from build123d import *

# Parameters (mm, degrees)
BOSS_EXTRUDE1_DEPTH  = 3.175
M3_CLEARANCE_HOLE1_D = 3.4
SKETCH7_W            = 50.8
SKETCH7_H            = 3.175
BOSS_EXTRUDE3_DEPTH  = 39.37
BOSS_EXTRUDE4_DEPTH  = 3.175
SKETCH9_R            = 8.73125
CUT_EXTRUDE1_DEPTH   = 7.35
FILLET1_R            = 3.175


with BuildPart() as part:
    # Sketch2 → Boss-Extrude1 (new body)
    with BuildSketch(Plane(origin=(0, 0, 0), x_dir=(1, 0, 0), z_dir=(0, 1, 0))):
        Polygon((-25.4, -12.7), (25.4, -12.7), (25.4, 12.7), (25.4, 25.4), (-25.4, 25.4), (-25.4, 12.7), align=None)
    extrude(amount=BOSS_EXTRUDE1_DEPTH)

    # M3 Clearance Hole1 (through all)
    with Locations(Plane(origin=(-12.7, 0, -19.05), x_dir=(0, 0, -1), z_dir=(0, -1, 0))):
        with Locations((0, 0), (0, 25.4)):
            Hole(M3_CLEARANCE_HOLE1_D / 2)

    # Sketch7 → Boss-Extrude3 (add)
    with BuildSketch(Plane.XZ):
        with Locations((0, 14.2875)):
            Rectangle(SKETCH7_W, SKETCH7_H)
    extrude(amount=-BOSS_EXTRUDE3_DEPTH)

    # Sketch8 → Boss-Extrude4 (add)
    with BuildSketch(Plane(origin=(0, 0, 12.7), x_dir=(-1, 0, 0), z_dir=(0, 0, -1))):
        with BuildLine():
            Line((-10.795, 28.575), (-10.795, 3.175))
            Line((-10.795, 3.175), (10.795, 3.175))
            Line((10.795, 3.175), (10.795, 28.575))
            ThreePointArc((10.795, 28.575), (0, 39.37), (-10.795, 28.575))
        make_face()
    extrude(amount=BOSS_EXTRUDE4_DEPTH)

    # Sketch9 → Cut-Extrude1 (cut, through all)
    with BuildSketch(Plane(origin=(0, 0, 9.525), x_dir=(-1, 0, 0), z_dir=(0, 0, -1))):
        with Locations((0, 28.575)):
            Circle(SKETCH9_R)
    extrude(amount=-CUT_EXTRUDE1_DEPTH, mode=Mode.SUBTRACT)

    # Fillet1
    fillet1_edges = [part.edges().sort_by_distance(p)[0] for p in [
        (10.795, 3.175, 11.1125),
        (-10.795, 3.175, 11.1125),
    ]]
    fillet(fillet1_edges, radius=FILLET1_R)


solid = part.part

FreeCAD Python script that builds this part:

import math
import FreeCAD as App
import Part
import Sketcher
Q = App.Units.Quantity


def edges_at(feature, points):
    """Names of the edges that pass closest to the given points."""
    edges = feature.Shape.Edges
    near = lambda p: min(range(len(edges)), key=lambda i: edges[i].distToShape(Part.Vertex(*p))[0])
    return sorted({f"Edge{near(p) + 1}" for p in points})

doc = App.newDocument("Part")
params = doc.addObject("Spreadsheet::Sheet", "Params")
for row, (alias, value) in enumerate([
    ("sketch1_width", "2 in"),
    ("sketch1_height", "1.5 in"),
    ("pad1_length", "0.125 in"),
    ("hole_diameter", "3.4 mm"),
    ("sketch3_width", "2 in"),
    ("sketch3_height", "0.125 in"),
    ("pad2_length", "1.55 in"),
    ("sketch4_height", "1 in"),
    ("sketch4_radius", "0.425 in"),
    ("pad3_length", "0.125 in"),
    ("sketch5_diameter", "0.6875 in"),
    ("fillet_radius", "0.125 in"),
], start=1):
    params.set(f"A{row}", alias)
    params.set(f"B{row}", "=" + value)
    params.setAlias(f"B{row}", alias)

body = doc.addObject("PartDesign::Body", "Body")

sketch1 = doc.addObject("Sketcher::SketchObject", "Sketch")
body.addObject(sketch1)
sketch1.AttachmentSupport = (doc.XZ_Plane, [""])
sketch1.MapMode = "FlatFace"
sketch1.addGeometry([
    Part.LineSegment(App.Vector(-25, 13, 0), App.Vector(25, 13, 0)),
    Part.LineSegment(App.Vector(25, 13, 0), App.Vector(25, -25, 0)),
    Part.LineSegment(App.Vector(25, -25, 0), App.Vector(-25, -25, 0)),
    Part.LineSegment(App.Vector(-25, -25, 0), App.Vector(-25, 13, 0)),
], False)
sketch1.addConstraint([
    Sketcher.Constraint("Coincident", 0, 2, 1, 1),
    Sketcher.Constraint("Coincident", 1, 2, 2, 1),
    Sketcher.Constraint("Coincident", 2, 2, 3, 1),
    Sketcher.Constraint("Coincident", 3, 2, 0, 1),
    Sketcher.Constraint("Horizontal", 0),
    Sketcher.Constraint("Vertical", 1),
    Sketcher.Constraint("Horizontal", 2),
    Sketcher.Constraint("Vertical", 3),
    Sketcher.Constraint("DistanceX", 0, 1, 0, 2, Q("2 in")),
    Sketcher.Constraint("DistanceY", 1, 2, 1, 1, Q("1.5 in")),
    Sketcher.Constraint("DistanceX", -1, 1, 0, 2, Q("1 in")),
    Sketcher.Constraint("DistanceY", 1, 2, -1, 1, Q("1 in")),
])
sketch1.setExpression("Constraints[8]", "Params.sketch1_width")
sketch1.setExpression("Constraints[9]", "Params.sketch1_height")
pad1 = doc.addObject("PartDesign::Pad", "Pad")
body.addObject(pad1)
pad1.Profile = sketch1
pad1.setExpression("Length", "Params.pad1_length")
pad1.Reversed = True

sketch2 = doc.addObject("Sketcher::SketchObject", "Sketch001")
body.addObject(sketch2)
sketch2.AttachmentSupport = (doc.XZ_Plane, [""])
sketch2.MapMode = "FlatFace"
sketch2.addGeometry([
    Part.Circle(App.Vector(-12.7, -19.1, 0), App.Vector(0, 0, 1), 1.7),
    Part.Circle(App.Vector(12.7, -19.1, 0), App.Vector(0, 0, 1), 1.7),
], False)
sketch2.addConstraint([
    Sketcher.Constraint("Equal", 0, 1),
    Sketcher.Constraint("Symmetric", 0, 3, 1, 3, -2),
    Sketcher.Constraint("DistanceX", 0, 3, 1, 3, Q("1 in")),
    Sketcher.Constraint("Diameter", 0, Q("3.4 mm")),
    Sketcher.Constraint("DistanceY", 0, 3, -1, 1, Q("0.75 in")),
])
doc.recompute()
hole = doc.addObject("PartDesign::Hole", "Hole")
body.addObject(hole)
hole.Profile = sketch2
hole.ThreadType = "None"
hole.setExpression("Diameter", "Params.hole_diameter")
hole.DepthType = "ThroughAll"

sketch3 = doc.addObject("Sketcher::SketchObject", "Sketch002")
body.addObject(sketch3)
sketch3.AttachmentSupport = (doc.XZ_Plane, [""])
sketch3.MapMode = "FlatFace"
sketch3.addGeometry([
    Part.LineSegment(App.Vector(-25.4, 15.9, 0), App.Vector(-25.4, 12.7, 0)),
    Part.LineSegment(App.Vector(-25.4, 12.7, 0), App.Vector(25.4, 12.7, 0)),
    Part.LineSegment(App.Vector(25.4, 12.7, 0), App.Vector(25.4, 15.9, 0)),
    Part.LineSegment(App.Vector(25.4, 15.9, 0), App.Vector(-25.4, 15.9, 0)),
], False)
sketch3.addConstraint([
    Sketcher.Constraint("Coincident", 0, 2, 1, 1),
    Sketcher.Constraint("Coincident", 1, 2, 2, 1),
    Sketcher.Constraint("Coincident", 2, 2, 3, 1),
    Sketcher.Constraint("Coincident", 3, 2, 0, 1),
    Sketcher.Constraint("Vertical", 0),
    Sketcher.Constraint("Horizontal", 1),
    Sketcher.Constraint("Vertical", 2),
    Sketcher.Constraint("Horizontal", 3),
    Sketcher.Constraint("DistanceX", 1, 1, 1, 2, Q("2 in")),
    Sketcher.Constraint("DistanceX", 0, 2, -1, 1, Q("1 in")),
    Sketcher.Constraint("DistanceY", -1, 1, 0, 2, Q("0.5 in")),
    Sketcher.Constraint("DistanceY", 0, 2, 0, 1, Q("0.125 in")),
])
sketch3.setExpression("Constraints[8]", "Params.sketch3_width")
sketch3.setExpression("Constraints[11]", "Params.sketch3_height")
pad2 = doc.addObject("PartDesign::Pad", "Pad001")
body.addObject(pad2)
pad2.Profile = sketch3
pad2.setExpression("Length", "Params.pad2_length")
pad2.Reversed = True

sketch4 = doc.addObject("Sketcher::SketchObject", "Sketch003")
body.addObject(sketch4)
sketch4.AttachmentSupport = (doc.XY_Plane, [""])
sketch4.MapMode = "FlatFace"
sketch4.AttachmentOffset = App.Placement(App.Vector(0, 0, 0.5 * 25.4), App.Rotation())
sketch4.addGeometry([
    Part.LineSegment(App.Vector(11, 29, 0), App.Vector(11, 3, 0)),
    Part.LineSegment(App.Vector(11, 3, 0), App.Vector(-11, 3, 0)),
    Part.LineSegment(App.Vector(-11, 3, 0), App.Vector(-11, 29, 0)),
    Part.ArcOfCircle(Part.Circle(App.Vector(0, 29, 0), App.Vector(0, 0, 1), 11), math.radians(0), math.radians(180)),
], False)
sketch4.addConstraint([
    Sketcher.Constraint("Coincident", 0, 2, 1, 1),
    Sketcher.Constraint("Coincident", 1, 2, 2, 1),
    Sketcher.Constraint("Tangent", 2, 2, 3, 2),
    Sketcher.Constraint("Tangent", 3, 1, 0, 1),
    Sketcher.Constraint("Vertical", 0),
    Sketcher.Constraint("Horizontal", 1),
    Sketcher.Constraint("Vertical", 2),
    Sketcher.Constraint("PointOnObject", 3, 3, -2),
    Sketcher.Constraint("DistanceY", 0, 2, 0, 1, Q("1 in")),
    Sketcher.Constraint("Radius", 3, Q("0.425 in")),
    Sketcher.Constraint("DistanceY", -1, 1, 3, 3, Q("1.125 in")),
])
sketch4.setExpression("Constraints[8]", "Params.sketch4_height")
sketch4.setExpression("Constraints[9]", "Params.sketch4_radius")
pad3 = doc.addObject("PartDesign::Pad", "Pad002")
body.addObject(pad3)
pad3.Profile = sketch4
pad3.setExpression("Length", "Params.pad3_length")
pad3.Reversed = True

sketch5 = doc.addObject("Sketcher::SketchObject", "Sketch004")
body.addObject(sketch5)
sketch5.AttachmentSupport = (doc.XY_Plane, [""])
sketch5.MapMode = "FlatFace"
sketch5.AttachmentOffset = App.Placement(App.Vector(0, 0, 0.375 * 25.4), App.Rotation())
sketch5.addGeometry(Part.Circle(App.Vector(0, 29, 0), App.Vector(0, 0, 1), 9), False)
sketch5.addConstraint([
    Sketcher.Constraint("PointOnObject", 0, 3, -2),
    Sketcher.Constraint("Diameter", 0, Q("0.6875 in")),
    Sketcher.Constraint("DistanceY", -1, 1, 0, 3, Q("1.125 in")),
])
sketch5.setExpression("Constraints[1]", "Params.sketch5_diameter")
pocket1 = doc.addObject("PartDesign::Pocket", "Pocket")
body.addObject(pocket1)
pocket1.Profile = sketch5
pocket1.Type = "ThroughAll"
pocket1.Reversed = True
doc.recompute()

fillet = doc.addObject("PartDesign::Fillet", "Fillet")
body.addObject(fillet)
fillet.Base = (pocket1, edges_at(pocket1, [(10.795, 3.175, 11.113), (-10.795, 3.175, 11.113)]))
fillet.setExpression("Radius", "Params.fillet_radius")

doc.recompute()
